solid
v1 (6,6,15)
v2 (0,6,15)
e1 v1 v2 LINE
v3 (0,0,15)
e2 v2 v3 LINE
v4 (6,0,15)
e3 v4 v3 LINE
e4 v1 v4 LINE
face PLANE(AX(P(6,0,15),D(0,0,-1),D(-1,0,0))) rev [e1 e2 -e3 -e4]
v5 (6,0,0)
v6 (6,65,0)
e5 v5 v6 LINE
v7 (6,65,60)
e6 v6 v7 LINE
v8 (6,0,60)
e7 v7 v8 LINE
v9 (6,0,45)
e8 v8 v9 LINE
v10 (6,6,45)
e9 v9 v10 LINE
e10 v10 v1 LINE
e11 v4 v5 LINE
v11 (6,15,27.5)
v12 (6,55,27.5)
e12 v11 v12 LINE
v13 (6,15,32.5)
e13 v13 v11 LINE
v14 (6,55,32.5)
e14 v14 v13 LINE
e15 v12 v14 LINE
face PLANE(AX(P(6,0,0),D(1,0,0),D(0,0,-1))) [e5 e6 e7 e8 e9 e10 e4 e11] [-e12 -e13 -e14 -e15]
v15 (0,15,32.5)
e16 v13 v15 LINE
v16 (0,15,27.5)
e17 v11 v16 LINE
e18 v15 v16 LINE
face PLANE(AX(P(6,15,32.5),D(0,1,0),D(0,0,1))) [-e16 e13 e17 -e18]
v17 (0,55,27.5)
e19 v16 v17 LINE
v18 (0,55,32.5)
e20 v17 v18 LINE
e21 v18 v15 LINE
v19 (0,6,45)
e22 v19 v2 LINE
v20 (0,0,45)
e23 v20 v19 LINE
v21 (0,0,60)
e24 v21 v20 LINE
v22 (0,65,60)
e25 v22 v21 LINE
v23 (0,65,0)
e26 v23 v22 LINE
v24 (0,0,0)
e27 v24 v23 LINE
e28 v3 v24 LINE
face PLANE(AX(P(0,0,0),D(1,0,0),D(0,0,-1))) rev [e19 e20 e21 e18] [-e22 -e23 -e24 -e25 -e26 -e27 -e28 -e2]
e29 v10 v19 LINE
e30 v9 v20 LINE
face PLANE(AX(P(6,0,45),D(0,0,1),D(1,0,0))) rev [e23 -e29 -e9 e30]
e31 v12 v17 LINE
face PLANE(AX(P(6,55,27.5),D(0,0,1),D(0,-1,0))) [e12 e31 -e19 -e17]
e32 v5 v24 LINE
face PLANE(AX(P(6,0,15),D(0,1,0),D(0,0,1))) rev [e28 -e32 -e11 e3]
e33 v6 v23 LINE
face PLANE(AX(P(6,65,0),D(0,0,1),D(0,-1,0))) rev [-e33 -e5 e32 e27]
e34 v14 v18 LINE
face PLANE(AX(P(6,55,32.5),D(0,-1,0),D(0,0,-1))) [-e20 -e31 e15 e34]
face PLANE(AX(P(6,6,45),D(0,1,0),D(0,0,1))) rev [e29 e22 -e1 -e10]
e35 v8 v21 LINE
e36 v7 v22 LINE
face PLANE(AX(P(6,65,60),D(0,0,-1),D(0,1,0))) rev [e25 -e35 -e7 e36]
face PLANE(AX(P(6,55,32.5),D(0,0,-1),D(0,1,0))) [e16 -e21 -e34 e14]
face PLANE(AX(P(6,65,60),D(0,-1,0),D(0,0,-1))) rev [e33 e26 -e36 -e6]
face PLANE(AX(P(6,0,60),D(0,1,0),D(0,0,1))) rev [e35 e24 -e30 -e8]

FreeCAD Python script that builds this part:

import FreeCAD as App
import Part
import Sketcher
from FreeCAD import Vector
Q = App.Units.Quantity

doc = App.newDocument("Part")
params = doc.addObject("Spreadsheet::Sheet", "Params")
for row, (alias, value) in enumerate([
    ("sketch1_width", "65 mm"),
    ("sketch1_width2", "6 mm"),
    ("sketch1_width3", "40 mm"),
    ("sketch1_height", "15 mm"),
    ("sketch1_height2", "60 mm"),
    ("pad1_length", "6 mm"),
], start=1):
    params.set(f"A{row}", alias)
    params.set(f"B{row}", "=" + value)
    params.setAlias(f"B{row}", alias)

body = doc.addObject("PartDesign::Body", "Body")

sketch1 = doc.addObject("Sketcher::SketchObject", "Sketch")
body.addObject(sketch1)
sketch1.AttachmentSupport = (doc.YZ_Plane, [""])
sketch1.MapMode = "FlatFace"
sketch1.addGeometry(Part.LineSegment(Vector(0, 15, 0), Vector(0, 0, 0)), False)
sketch1.addGeometry(Part.LineSegment(Vector(0, 0, 0), Vector(65, 0, 0)), False)
sketch1.addGeometry(Part.LineSegment(Vector(65, 0, 0), Vector(65, 60, 0)), False)
sketch1.addGeometry(Part.LineSegment(Vector(65, 60, 0), Vector(0, 60, 0)), False)
sketch1.addGeometry(Part.LineSegment(Vector(0, 60, 0), Vector(0, 45, 0)), False)
sketch1.addGeometry(Part.LineSegment(Vector(0, 45, 0), Vector(6, 45, 0)), False)
sketch1.addGeometry(Part.LineSegment(Vector(6, 45, 0), Vector(6, 15, 0)), False)
sketch1.addGeometry(Part.LineSegment(Vector(6, 15, 0), Vector(0, 15, 0)), False)
sketch1.addGeometry(Part.LineSegment(Vector(15, 28, 0), Vector(15, 32, 0)), False)
sketch1.addGeometry(Part.LineSegment(Vector(15, 32, 0), Vector(55, 32, 0)), False)
sketch1.addGeometry(Part.LineSegment(Vector(55, 32, 0), Vector(55, 28, 0)), False)
sketch1.addGeometry(Part.LineSegment(Vector(55, 28, 0), Vector(15, 28, 0)), False)
sketch1.addConstraint(Sketcher.Constraint("Coincident", 0, 2, 1, 1))
sketch1.addConstraint(Sketcher.Constraint("Coincident", 1, 2, 2, 1))
sketch1.addConstraint(Sketcher.Constraint("Coincident", 2, 2, 3, 1))
sketch1.addConstraint(Sketcher.Constraint("Coincident", 3, 2, 4, 1))
sketch1.addConstraint(Sketcher.Constraint("Coincident", 4, 2, 5, 1))
sketch1.addConstraint(Sketcher.Constraint("Coincident", 5, 2, 6, 1))
sketch1.addConstraint(Sketcher.Constraint("Coincident", 6, 2, 7, 1))
sketch1.addConstraint(Sketcher.Constraint("Coincident", 7, 2, 0, 1))
sketch1.addConstraint(Sketcher.Constraint("Coincident", 8, 2, 9, 1))
sketch1.addConstraint(Sketcher.Constraint("Coincident", 9, 2, 10, 1))
sketch1.addConstraint(Sketcher.Constraint("Coincident", 10, 2, 11, 1))
sketch1.addConstraint(Sketcher.Constraint("Coincident", 11, 2, 8, 1))
sketch1.addConstraint(Sketcher.Constraint("Vertical", 0))
sketch1.addConstraint(Sketcher.Constraint("Horizontal", 1))
sketch1.addConstraint(Sketcher.Constraint("Vertical", 2))
sketch1.addConstraint(Sketcher.Constraint("Horizontal", 3))
sketch1.addConstraint(Sketcher.Constraint("Vertical", 4))
sketch1.addConstraint(Sketcher.Constraint("Horizontal", 5))
sketch1.addConstraint(Sketcher.Constraint("Vertical", 6))
sketch1.addConstraint(Sketcher.Constraint("Horizontal", 7))
sketch1.addConstraint(Sketcher.Constraint("Vertical", 8))
sketch1.addConstraint(Sketcher.Constraint("Horizontal", 9))
sketch1.addConstraint(Sketcher.Constraint("Vertical", 10))
sketch1.addConstraint(Sketcher.Constraint("Horizontal", 11))
sketch1.addConstraint(Sketcher.Constraint("Coincident", 0, 2, -1, 1))
sketch1.addConstraint(Sketcher.Constraint("PointOnObject", 3, 2, -2))
sketch1.addConstraint(Sketcher.Constraint("Equal", 0, 4))
sketch1.addConstraint(Sketcher.Constraint("DistanceX", 1, 1, 1, 2, Q("65 mm")))
sketch1.addConstraint(Sketcher.Constraint("DistanceX", 5, 1, 5, 2, Q("6 mm")))
sketch1.addConstraint(Sketcher.Constraint("DistanceX", 9, 1, 9, 2, Q("40 mm")))
sketch1.addConstraint(Sketcher.Constraint("DistanceY", 0, 2, 0, 1, Q("15 mm")))
sketch1.addConstraint(Sketcher.Constraint("DistanceY", 2, 1, 2, 2, Q("60 mm")))
sketch1.addConstraint(Sketcher.Constraint("DistanceY", 8, 1, 8, 2, Q("5 mm")))
sketch1.addConstraint(Sketcher.Constraint("DistanceX", -1, 1, 8, 2, Q("15 mm")))
sketch1.addConstraint(Sketcher.Constraint("DistanceY", -1, 1, 8, 2, Q("32.5 mm")))
sketch1.setExpression("Constraints[27]", "Params.sketch1_width")
sketch1.setExpression("Constraints[28]", "Params.sketch1_width2")
sketch1.setExpression("Constraints[29]", "Params.sketch1_width3")
sketch1.setExpression("Constraints[30]", "Params.sketch1_height")
sketch1.setExpression("Constraints[31]", "Params.sketch1_height2")
pad1 = doc.addObject("PartDesign::Pad", "Pad")
body.addObject(pad1)
pad1.Profile = sketch1
pad1.setExpression("Length", "Params.pad1_length")

doc.recompute()
